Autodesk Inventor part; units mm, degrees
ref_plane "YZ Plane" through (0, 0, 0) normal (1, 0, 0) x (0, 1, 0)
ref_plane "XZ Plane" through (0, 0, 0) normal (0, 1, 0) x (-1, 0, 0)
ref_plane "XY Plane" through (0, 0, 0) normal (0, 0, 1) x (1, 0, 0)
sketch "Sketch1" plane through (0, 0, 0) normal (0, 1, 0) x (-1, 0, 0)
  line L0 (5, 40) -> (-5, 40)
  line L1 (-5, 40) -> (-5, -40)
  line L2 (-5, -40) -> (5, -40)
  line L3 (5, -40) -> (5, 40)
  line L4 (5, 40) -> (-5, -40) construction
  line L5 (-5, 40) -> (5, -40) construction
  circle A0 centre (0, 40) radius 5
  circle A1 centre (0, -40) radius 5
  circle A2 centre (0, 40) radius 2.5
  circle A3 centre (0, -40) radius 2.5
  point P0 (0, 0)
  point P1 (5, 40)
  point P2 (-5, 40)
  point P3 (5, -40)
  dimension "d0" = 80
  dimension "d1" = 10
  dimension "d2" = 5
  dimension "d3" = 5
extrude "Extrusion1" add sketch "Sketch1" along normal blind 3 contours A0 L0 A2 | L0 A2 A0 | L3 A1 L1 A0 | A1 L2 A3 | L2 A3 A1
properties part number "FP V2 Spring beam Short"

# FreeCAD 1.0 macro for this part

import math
import FreeCAD as App
import Part
import Sketcher
Q = App.Units.Quantity

doc = App.newDocument("Part")
body = doc.addObject("PartDesign::Body", "Body")

# Sketch on XZ plane
sketch1 = doc.addObject("Sketcher::SketchObject", "Sketch")
body.addObject(sketch1)
sketch1.AttachmentSupport = (doc.XZ_Plane, [""])
sketch1.MapMode = "FlatFace"
sketch1.addGeometry([
    Part.LineSegment(App.Vector(-5, -40, 0), App.Vector(-5, 40, 0)),  # 0
    Part.ArcOfCircle(Part.Circle(App.Vector(0, 40, 0), App.Vector(0, 0, 1), 5), math.radians(0), math.radians(180)),  # 1
    Part.LineSegment(App.Vector(5, 40, 0), App.Vector(5, -40, 0)),  # 2
    Part.ArcOfCircle(Part.Circle(App.Vector(0, -40, 0), App.Vector(0, 0, 1), 5), math.radians(180), math.radians(360)),  # 3
    Part.Circle(App.Vector(0, 40, 0), App.Vector(0, 0, 1), 2.5),  # 4
    Part.Circle(App.Vector(0, -40, 0), App.Vector(0, 0, 1), 2.5),  # 5
], False)
sketch1.addConstraint([
    Sketcher.Constraint("Tangent", 0, 2, 1, 2),
    Sketcher.Constraint("Tangent", 1, 1, 2, 1),
    Sketcher.Constraint("Tangent", 2, 2, 3, 2),
    Sketcher.Constraint("Tangent", 3, 1, 0, 1),
    Sketcher.Constraint("Vertical", 0),
    Sketcher.Constraint("Vertical", 2),
    Sketcher.Constraint("Coincident", 4, 3, 1, 3),
    Sketcher.Constraint("Coincident", 5, 3, 3, 3),
    Sketcher.Constraint("Equal", 4, 5),
    Sketcher.Constraint("Symmetric", 1, 3, 3, 3, -1, 1),
    Sketcher.Constraint("Diameter", 4, Q("5 mm")),
    Sketcher.Constraint("Radius", 1, Q("5 mm")),
    Sketcher.Constraint("DistanceY", 0, 1, 0, 2, Q("80 mm")),
])
pad1 = doc.addObject("PartDesign::Pad", "Pad")
body.addObject(pad1)
pad1.Profile = sketch1
pad1.Length = 3
pad1.Reversed = True

doc.recompute()
